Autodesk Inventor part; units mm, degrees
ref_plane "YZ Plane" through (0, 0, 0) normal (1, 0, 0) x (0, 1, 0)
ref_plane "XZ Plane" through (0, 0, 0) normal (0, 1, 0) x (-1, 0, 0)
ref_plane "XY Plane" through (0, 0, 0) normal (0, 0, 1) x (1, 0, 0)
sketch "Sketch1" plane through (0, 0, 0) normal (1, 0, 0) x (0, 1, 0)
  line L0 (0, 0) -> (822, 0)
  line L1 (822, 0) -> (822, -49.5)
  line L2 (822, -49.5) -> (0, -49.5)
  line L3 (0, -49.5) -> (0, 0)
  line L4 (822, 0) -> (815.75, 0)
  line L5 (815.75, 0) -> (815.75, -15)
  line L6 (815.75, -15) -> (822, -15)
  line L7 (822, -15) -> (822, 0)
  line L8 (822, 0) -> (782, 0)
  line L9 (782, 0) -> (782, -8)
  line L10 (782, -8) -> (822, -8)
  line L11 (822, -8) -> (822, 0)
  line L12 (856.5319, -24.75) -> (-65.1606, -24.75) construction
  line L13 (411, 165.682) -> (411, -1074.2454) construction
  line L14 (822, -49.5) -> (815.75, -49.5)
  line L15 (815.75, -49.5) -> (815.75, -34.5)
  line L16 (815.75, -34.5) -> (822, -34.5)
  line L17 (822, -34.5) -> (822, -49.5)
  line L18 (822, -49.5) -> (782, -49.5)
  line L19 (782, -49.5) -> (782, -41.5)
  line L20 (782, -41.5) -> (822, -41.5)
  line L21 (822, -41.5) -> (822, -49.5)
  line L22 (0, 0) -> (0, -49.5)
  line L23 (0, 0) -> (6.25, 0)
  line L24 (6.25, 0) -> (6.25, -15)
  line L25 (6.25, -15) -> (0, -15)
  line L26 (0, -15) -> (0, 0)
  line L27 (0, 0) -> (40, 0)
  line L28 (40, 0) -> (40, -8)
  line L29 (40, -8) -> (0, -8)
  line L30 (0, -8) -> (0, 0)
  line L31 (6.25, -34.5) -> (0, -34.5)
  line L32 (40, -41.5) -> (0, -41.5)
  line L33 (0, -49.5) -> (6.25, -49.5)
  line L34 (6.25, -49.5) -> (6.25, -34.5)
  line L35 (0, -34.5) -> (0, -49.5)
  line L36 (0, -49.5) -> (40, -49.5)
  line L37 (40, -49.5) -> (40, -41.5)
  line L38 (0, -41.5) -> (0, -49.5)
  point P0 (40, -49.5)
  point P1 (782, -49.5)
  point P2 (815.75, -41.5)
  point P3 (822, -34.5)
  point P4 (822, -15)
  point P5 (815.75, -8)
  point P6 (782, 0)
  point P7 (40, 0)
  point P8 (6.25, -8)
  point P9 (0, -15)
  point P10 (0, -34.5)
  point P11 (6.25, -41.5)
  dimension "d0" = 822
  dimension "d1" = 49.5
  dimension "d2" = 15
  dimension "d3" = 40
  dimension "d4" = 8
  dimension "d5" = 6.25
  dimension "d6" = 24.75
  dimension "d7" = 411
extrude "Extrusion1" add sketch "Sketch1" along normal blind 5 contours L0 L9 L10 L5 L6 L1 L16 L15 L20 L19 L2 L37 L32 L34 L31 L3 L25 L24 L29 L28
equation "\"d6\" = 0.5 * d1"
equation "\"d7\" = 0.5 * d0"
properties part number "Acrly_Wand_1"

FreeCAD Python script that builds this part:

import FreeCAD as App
import Part
import Sketcher
Q = App.Units.Quantity


def add_polygon(sketch, points):
    """Adds a closed chain of lines whose ends are joined by coincident constraints."""
    first, n = sketch.GeometryCount, len(points)
    for a, b in zip(points, points[1:] + points[:1]):
        sketch.addGeometry(Part.LineSegment(App.Vector(*a, 0), App.Vector(*b, 0)), False)
    for i in range(n):
        sketch.addConstraint(Sketcher.Constraint("Coincident", first + i, 2, first + (i + 1) % n, 1))

doc = App.newDocument("Part")
body = doc.addObject("PartDesign::Body", "Body")

# Sketch on YZ plane
sketch1 = doc.addObject("Sketcher::SketchObject", "Sketch")
body.addObject(sketch1)
sketch1.AttachmentSupport = (doc.YZ_Plane, [""])
sketch1.MapMode = "FlatFace"
add_polygon(sketch1, [(782, 0), (40, 0), (40, -8), (6, -8), (6, -15), (0, -15), (0, -34), (6, -34), (6, -42), (40, -42), (40, -50), (782, -50), (782, -42), (816, -42), (816, -34), (822, -34), (822, -15), (816, -15), (816, -8), (782, -8)])  # lines 0-19
sketch1.addConstraint([
    Sketcher.Constraint("Horizontal", 0),
    Sketcher.Constraint("Vertical", 1),
    Sketcher.Constraint("Horizontal", 2),
    Sketcher.Constraint("Vertical", 3),
    Sketcher.Constraint("Horizontal", 4),
    Sketcher.Constraint("Vertical", 5),
    Sketcher.Constraint("Horizontal", 6),
    Sketcher.Constraint("Vertical", 7),
    Sketcher.Constraint("Horizontal", 8),
    Sketcher.Constraint("Vertical", 9),
    Sketcher.Constraint("Horizontal", 10),
    Sketcher.Constraint("Vertical", 11),
    Sketcher.Constraint("Horizontal", 12),
    Sketcher.Constraint("Vertical", 13),
    Sketcher.Constraint("Horizontal", 14),
    Sketcher.Constraint("Vertical", 15),
    Sketcher.Constraint("Horizontal", 16),
    Sketcher.Constraint("Vertical", 17),
    Sketcher.Constraint("Horizontal", 18),
    Sketcher.Constraint("Vertical", 19),
    Sketcher.Constraint("PointOnObject", 0, 2, -1),
    Sketcher.Constraint("PointOnObject", 4, 2, -2),
    Sketcher.Constraint("Horizontal", 8, 2, 11, 2),
    Sketcher.Constraint("Horizontal", 6, 2, 13, 2),
    Sketcher.Constraint("Horizontal", 4, 2, 15, 2),
    Sketcher.Constraint("Horizontal", 2, 2, 17, 2),
    Sketcher.Constraint("Vertical", 3, 2, 6, 2),
    Sketcher.Constraint("Vertical", 1, 2, 8, 2),
    Sketcher.Constraint("Vertical", 13, 2, 16, 2),
    Sketcher.Constraint("Vertical", 11, 2, 18, 2),
    Sketcher.Constraint("Equal", 8, 12),
    Sketcher.Constraint("Equal", 6, 14),
    Sketcher.Constraint("Equal", 3, 7),
    Sketcher.Constraint("Equal", 1, 9),
    Sketcher.Constraint("DistanceY", 1, 2, 1, 1, Q("8 mm")),
    Sketcher.Constraint("DistanceX", -1, 1, 0, 2, Q("40 mm")),
    Sketcher.Constraint("DistanceY", 3, 2, -1, 1, Q("15 mm")),
    Sketcher.Constraint("DistanceX", -1, 1, 14, 2, Q("822 mm")),
    Sketcher.Constraint("DistanceX", 4, 2, 4, 1, Q("6.25 mm")),
    Sketcher.Constraint("DistanceY", 9, 2, -1, 1, Q("49.5 mm")),
])
pad1 = doc.addObject("PartDesign::Pad", "Pad")
body.addObject(pad1)
pad1.Profile = sketch1
pad1.Length = 5

doc.recompute()
